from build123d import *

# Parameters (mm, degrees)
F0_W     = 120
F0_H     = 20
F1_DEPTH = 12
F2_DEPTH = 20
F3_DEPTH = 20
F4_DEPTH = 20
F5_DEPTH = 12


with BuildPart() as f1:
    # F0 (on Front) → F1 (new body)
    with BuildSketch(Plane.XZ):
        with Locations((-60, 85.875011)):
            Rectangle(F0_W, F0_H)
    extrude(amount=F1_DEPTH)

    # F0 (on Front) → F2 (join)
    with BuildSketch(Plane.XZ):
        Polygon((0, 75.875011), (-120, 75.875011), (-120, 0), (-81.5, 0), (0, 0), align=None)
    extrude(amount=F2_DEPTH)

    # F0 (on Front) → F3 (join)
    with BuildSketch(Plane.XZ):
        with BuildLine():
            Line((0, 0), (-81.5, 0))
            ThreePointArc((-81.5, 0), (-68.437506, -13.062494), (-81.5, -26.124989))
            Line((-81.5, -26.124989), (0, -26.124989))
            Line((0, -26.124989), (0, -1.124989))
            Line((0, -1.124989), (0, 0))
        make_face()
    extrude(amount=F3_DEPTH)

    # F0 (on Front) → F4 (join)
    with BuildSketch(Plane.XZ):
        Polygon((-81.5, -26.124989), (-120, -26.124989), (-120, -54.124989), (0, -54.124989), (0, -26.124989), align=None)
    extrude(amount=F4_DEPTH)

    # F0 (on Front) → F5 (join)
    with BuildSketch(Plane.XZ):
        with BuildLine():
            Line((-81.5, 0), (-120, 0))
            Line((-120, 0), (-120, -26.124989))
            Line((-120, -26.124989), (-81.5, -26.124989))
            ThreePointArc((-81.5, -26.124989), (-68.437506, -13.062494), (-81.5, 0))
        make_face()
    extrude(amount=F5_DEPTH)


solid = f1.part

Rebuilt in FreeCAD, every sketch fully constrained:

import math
import FreeCAD as App
import Part
import Sketcher

V = App.Vector


def add_polygon(sketch, points):
    """Adds a closed chain of lines whose ends are joined by coincident constraints."""
    first, n = sketch.GeometryCount, len(points)
    for a, b in zip(points, points[1:] + points[:1]):
        sketch.addGeometry(Part.LineSegment(App.Vector(*a, 0), App.Vector(*b, 0)), False)
    for i in range(n):
        sketch.addConstraint(Sketcher.Constraint("Coincident", first + i, 2, first + (i + 1) % n, 1))

doc = App.newDocument("Part")
body = doc.addObject("PartDesign::Body", "Body")

# Sketch on XZ plane
sketch1 = body.newObject("Sketcher::SketchObject", "Sketch")
sketch1.AttachmentSupport = (doc.getObject("XZ_Plane"), [""])
sketch1.MapMode = "FlatFace"
add_polygon(sketch1, [(-120, 96), (-120, 76), (0, 76), (0, 96)])  # lines 0-3
sketch1.addConstraint([
    Sketcher.Constraint("Vertical", 0),
    Sketcher.Constraint("Horizontal", 1),
    Sketcher.Constraint("Vertical", 2),
    Sketcher.Constraint("Horizontal", 3),
    Sketcher.Constraint("PointOnObject", 1, 2, -2),
    Sketcher.Constraint("DistanceX", 1, 1, 1, 2, 120.0),
    Sketcher.Constraint("DistanceY", 0, 2, 0, 1, 20.0),
    Sketcher.Constraint("DistanceY", -1, 1, 0, 2, 75.875011),
])
pad1 = body.newObject("PartDesign::Pad", "Pad")
pad1.Profile = sketch1
pad1.Length = 12

# Sketch on XZ plane
sketch2 = body.newObject("Sketcher::SketchObject", "Sketch001")
sketch2.AttachmentSupport = (doc.getObject("XZ_Plane"), [""])
sketch2.MapMode = "FlatFace"
add_polygon(sketch2, [(0, 76), (-120, 76), (-120, 0), (0, 0)])  # lines 0-3
sketch2.addConstraint([
    Sketcher.Constraint("Horizontal", 0),
    Sketcher.Constraint("Vertical", 1),
    Sketcher.Constraint("Horizontal", 2),
    Sketcher.Constraint("Vertical", 3),
    Sketcher.Constraint("Coincident", 2, 2, -1, 1),
    Sketcher.Constraint("DistanceX", 0, 2, 0, 1, 120.0),
    Sketcher.Constraint("DistanceY", 1, 2, 1, 1, 75.875011),
])
pad2 = body.newObject("PartDesign::Pad", "Pad001")
pad2.Profile = sketch2
pad2.Length = 20

# Sketch on XZ plane
sketch3 = body.newObject("Sketcher::SketchObject", "Sketch002")
sketch3.AttachmentSupport = (doc.getObject("XZ_Plane"), [""])
sketch3.MapMode = "FlatFace"
sketch3.addGeometry([
    Part.LineSegment(V(0, 0, 0), V(-82, 0, 0)),
    Part.ArcOfCircle(Part.Circle(V(-82, -13, 0), V(0, 0, 1), 13), math.radians(-90), math.radians(90)),
    Part.LineSegment(V(-82, -26, 0), V(0, -26, 0)),
    Part.LineSegment(V(0, -26, 0), V(0, 0, 0)),
], False)
sketch3.addConstraint([
    Sketcher.Constraint("Tangent", 0, 2, 1, 2),
    Sketcher.Constraint("Tangent", 1, 1, 2, 1),
    Sketcher.Constraint("Coincident", 2, 2, 3, 1),
    Sketcher.Constraint("Coincident", 3, 2, 0, 1),
    Sketcher.Constraint("Horizontal", 0),
    Sketcher.Constraint("Horizontal", 2),
    Sketcher.Constraint("Vertical", 3),
    Sketcher.Constraint("Coincident", 3, 2, -1, 1),
    Sketcher.Constraint("DistanceX", 0, 2, 0, 1, 81.5),
    Sketcher.Constraint("Radius", 1, 13.062494),
])
pad3 = body.newObject("PartDesign::Pad", "Pad002")
pad3.Profile = sketch3
pad3.Length = 20

# Sketch on XZ plane
sketch4 = body.newObject("Sketcher::SketchObject", "Sketch003")
sketch4.AttachmentSupport = (doc.getObject("XZ_Plane"), [""])
sketch4.MapMode = "FlatFace"
add_polygon(sketch4, [(-120, -26), (-120, -54), (0, -54), (0, -26)])  # lines 0-3
sketch4.addConstraint([
    Sketcher.Constraint("Vertical", 0),
    Sketcher.Constraint("Horizontal", 1),
    Sketcher.Constraint("Vertical", 2),
    Sketcher.Constraint("Horizontal", 3),
    Sketcher.Constraint("PointOnObject", 1, 2, -2),
    Sketcher.Constraint("DistanceX", 1, 1, 1, 2, 120.0),
    Sketcher.Constraint("DistanceY", 0, 2, 0, 1, 28.0),
    Sketcher.Constraint("DistanceY", 0, 2, -1, 1, 54.124989),
])
pad4 = body.newObject("PartDesign::Pad", "Pad003")
pad4.Profile = sketch4
pad4.Length = 20

# Sketch on XZ plane
sketch5 = body.newObject("Sketcher::SketchObject", "Sketch004")
sketch5.AttachmentSupport = (doc.getObject("XZ_Plane"), [""])
sketch5.MapMode = "FlatFace"
sketch5.addGeometry([
    Part.LineSegment(V(-82, 0, 0), V(-120, 0, 0)),
    Part.LineSegment(V(-120, 0, 0), V(-120, -26, 0)),
    Part.LineSegment(V(-120, -26, 0), V(-82, -26, 0)),
    Part.ArcOfCircle(Part.Circle(V(-82, -13, 0), V(0, 0, 1), 13), math.radians(-90), math.radians(90)),
], False)
sketch5.addConstraint([
    Sketcher.Constraint("Coincident", 0, 2, 1, 1),
    Sketcher.Constraint("Coincident", 1, 2, 2, 1),
    Sketcher.Constraint("Tangent", 2, 2, 3, 1),
    Sketcher.Constraint("Tangent", 3, 2, 0, 1),
    Sketcher.Constraint("Horizontal", 0),
    Sketcher.Constraint("Vertical", 1),
    Sketcher.Constraint("Horizontal", 2),
    Sketcher.Constraint("PointOnObject", 0, 2, -1),
    Sketcher.Constraint("DistanceX", 0, 2, 0, 1, 38.5),
    Sketcher.Constraint("DistanceX", 0, 2, -1, 1, 120.0),
    Sketcher.Constraint("Radius", 3, 13.062494),
])
pad5 = body.newObject("PartDesign::Pad", "Pad004")
pad5.Profile = sketch5
pad5.Length = 12

doc.recompute()
